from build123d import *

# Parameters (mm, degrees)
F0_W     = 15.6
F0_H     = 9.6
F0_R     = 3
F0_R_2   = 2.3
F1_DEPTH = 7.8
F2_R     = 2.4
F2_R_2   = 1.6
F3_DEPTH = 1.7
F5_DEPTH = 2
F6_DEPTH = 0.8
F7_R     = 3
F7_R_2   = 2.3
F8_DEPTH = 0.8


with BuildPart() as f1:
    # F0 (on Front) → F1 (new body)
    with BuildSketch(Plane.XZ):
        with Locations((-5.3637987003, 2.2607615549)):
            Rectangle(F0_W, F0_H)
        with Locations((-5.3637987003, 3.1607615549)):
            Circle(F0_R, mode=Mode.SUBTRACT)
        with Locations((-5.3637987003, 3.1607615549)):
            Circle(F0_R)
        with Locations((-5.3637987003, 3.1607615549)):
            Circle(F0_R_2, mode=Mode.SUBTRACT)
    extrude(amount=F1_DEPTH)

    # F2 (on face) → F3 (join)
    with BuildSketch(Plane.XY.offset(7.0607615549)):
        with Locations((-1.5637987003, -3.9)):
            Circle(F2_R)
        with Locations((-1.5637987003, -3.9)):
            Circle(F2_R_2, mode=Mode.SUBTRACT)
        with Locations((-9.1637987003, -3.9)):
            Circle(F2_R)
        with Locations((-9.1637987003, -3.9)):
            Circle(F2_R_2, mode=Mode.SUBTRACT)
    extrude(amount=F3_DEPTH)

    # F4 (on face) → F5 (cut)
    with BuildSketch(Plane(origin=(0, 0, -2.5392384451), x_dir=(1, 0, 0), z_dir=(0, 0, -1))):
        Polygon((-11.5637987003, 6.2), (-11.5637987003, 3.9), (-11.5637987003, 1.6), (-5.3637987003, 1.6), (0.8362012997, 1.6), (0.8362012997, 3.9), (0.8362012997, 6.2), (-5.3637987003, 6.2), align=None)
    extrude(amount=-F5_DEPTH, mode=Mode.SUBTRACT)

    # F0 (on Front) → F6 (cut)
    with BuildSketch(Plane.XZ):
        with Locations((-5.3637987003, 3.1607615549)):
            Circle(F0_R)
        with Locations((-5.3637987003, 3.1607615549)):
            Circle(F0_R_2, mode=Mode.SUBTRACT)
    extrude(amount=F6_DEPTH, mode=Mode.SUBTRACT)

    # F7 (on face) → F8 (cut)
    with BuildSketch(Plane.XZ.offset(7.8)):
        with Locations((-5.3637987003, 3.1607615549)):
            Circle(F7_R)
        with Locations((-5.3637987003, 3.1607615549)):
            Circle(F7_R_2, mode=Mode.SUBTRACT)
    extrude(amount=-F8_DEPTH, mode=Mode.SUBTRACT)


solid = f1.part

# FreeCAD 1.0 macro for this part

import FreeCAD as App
import Part
import Sketcher
from FreeCAD import Vector

doc = App.newDocument("Part")
body = doc.addObject("PartDesign::Body", "Body")

# Sketch on XZ plane
sketch1 = body.newObject("Sketcher::SketchObject", "Sketch")
sketch1.AttachmentSupport = (doc.getObject("XZ_Plane"), [""])
sketch1.MapMode = "FlatFace"
sketch1.addGeometry([
    Part.LineSegment(Vector(-13.163799, 7.060762, 0), Vector(-13.163799, -2.539238, 0)),  # 0
    Part.LineSegment(Vector(-13.163799, -2.539238, 0), Vector(2.436201, -2.539238, 0)),  # 1
    Part.LineSegment(Vector(2.436201, -2.539238, 0), Vector(2.436201, 7.060762, 0)),  # 2
    Part.LineSegment(Vector(2.436201, 7.060762, 0), Vector(-13.163799, 7.060762, 0)),  # 3
    Part.Circle(Vector(-5.363799, 3.160762, 0), Vector(0, 0, 1), 2.3),  # 4
], False)
sketch1.addConstraint([
    Sketcher.Constraint("Coincident", 0, 2, 1, 1),
    Sketcher.Constraint("Coincident", 1, 2, 2, 1),
    Sketcher.Constraint("Coincident", 2, 2, 3, 1),
    Sketcher.Constraint("Coincident", 3, 2, 0, 1),
    Sketcher.Constraint("Vertical", 0),
    Sketcher.Constraint("Horizontal", 1),
    Sketcher.Constraint("Vertical", 2),
    Sketcher.Constraint("Horizontal", 3),
    Sketcher.Constraint("Diameter", 4, 4.6),
    Sketcher.Constraint("DistanceX", 1, 1, 1, 2, 15.6),
    Sketcher.Constraint("DistanceY", 0, 2, 0, 1, 9.6),
    Sketcher.Constraint("DistanceX", 0, 2, 4, 3, 7.8),
    Sketcher.Constraint("DistanceY", 0, 2, 4, 3, 5.7),
    Sketcher.Constraint("DistanceX", 4, 3, -1, 1, 5.363799),
    Sketcher.Constraint("DistanceY", -1, 1, 4, 3, 3.160762),
])
pad1 = body.newObject("PartDesign::Pad", "Pad")
pad1.Profile = sketch1
pad1.Length = 7.8

# Sketch on XY plane
sketch2 = body.newObject("Sketcher::SketchObject", "Sketch001")
sketch2.AttachmentSupport = (doc.getObject("XY_Plane"), [""])
sketch2.MapMode = "FlatFace"
sketch2.AttachmentOffset = App.Placement(Vector(0, 0, 7.060762), App.Rotation())
sketch2.addGeometry([
    Part.Circle(Vector(-1.563799, -3.9, 0), Vector(0, 0, 1), 2.4),
    Part.Circle(Vector(-1.563799, -3.9, 0), Vector(0, 0, 1), 1.6),
    Part.Circle(Vector(-9.163799, -3.9, 0), Vector(0, 0, 1), 2.4),
    Part.Circle(Vector(-9.163799, -3.9, 0), Vector(0, 0, 1), 1.6),
], False)
sketch2.addConstraint([
    Sketcher.Constraint("Coincident", 1, 3, 0, 3),
    Sketcher.Constraint("Coincident", 3, 3, 2, 3),
    Sketcher.Constraint("Equal", 0, 2),
    Sketcher.Constraint("Equal", 1, 3),
    Sketcher.Constraint("Horizontal", 1, 3, 2, 3),
    Sketcher.Constraint("Diameter", 0, 4.8),
    Sketcher.Constraint("Diameter", 1, 3.2),
    Sketcher.Constraint("DistanceY", 0, 3, -1, 1, 3.9),
    Sketcher.Constraint("DistanceX", 2, 3, 0, 3, 7.6),
    Sketcher.Constraint("DistanceX", 0, 3, -1, 1, 1.563799),
])
pad2 = body.newObject("PartDesign::Pad", "Pad001")
pad2.Profile = sketch2
pad2.Length = 1.7

# Sketch on XY plane
sketch3 = body.newObject("Sketcher::SketchObject", "Sketch002")
sketch3.AttachmentSupport = (doc.getObject("XY_Plane"), [""])
sketch3.MapMode = "FlatFace"
sketch3.AttachmentOffset = App.Placement(Vector(0, 0, -2.539238), App.Rotation())
sketch3.addGeometry([
    Part.LineSegment(Vector(-11.563799, -6.2, 0), Vector(-11.563799, -1.6, 0)),
    Part.LineSegment(Vector(-11.563799, -1.6, 0), Vector(0.836201, -1.6, 0)),
    Part.LineSegment(Vector(0.836201, -1.6, 0), Vector(0.836201, -6.2, 0)),
    Part.LineSegment(Vector(0.836201, -6.2, 0), Vector(-11.563799, -6.2, 0)),
], False)
sketch3.addConstraint([
    Sketcher.Constraint("Coincident", 0, 2, 1, 1),
    Sketcher.Constraint("Coincident", 1, 2, 2, 1),
    Sketcher.Constraint("Coincident", 2, 2, 3, 1),
    Sketcher.Constraint("Coincident", 3, 2, 0, 1),
    Sketcher.Constraint("Vertical", 0),
    Sketcher.Constraint("Horizontal", 1),
    Sketcher.Constraint("Vertical", 2),
    Sketcher.Constraint("Horizontal", 3),
    Sketcher.Constraint("DistanceX", 1, 1, 1, 2, 12.4),
    Sketcher.Constraint("DistanceY", 0, 1, 0, 2, 4.6),
    Sketcher.Constraint("DistanceY", 0, 2, -1, 1, 1.6),
    Sketcher.Constraint("DistanceX", 0, 2, -1, 1, 11.563799),
])
pocket1 = body.newObject("PartDesign::Pocket", "Pocket")
pocket1.Profile = sketch3
pocket1.Length = 2
pocket1.Reversed = True

# Sketch on XZ plane
sketch4 = body.newObject("Sketcher::SketchObject", "Sketch003")
sketch4.AttachmentSupport = (doc.getObject("XZ_Plane"), [""])
sketch4.MapMode = "FlatFace"
sketch4.addGeometry([
    Part.Circle(Vector(-5.363799, 3.160762, 0), Vector(0, 0, 1), 3),
    Part.Circle(Vector(-5.363799, 3.160762, 0), Vector(0, 0, 1), 2.3),
], False)
sketch4.addConstraint([
    Sketcher.Constraint("Coincident", 1, 3, 0, 3),
    Sketcher.Constraint("Diameter", 0, 6.0),
    Sketcher.Constraint("Diameter", 1, 4.6),
    Sketcher.Constraint("DistanceX", 0, 3, -1, 1, 5.363799),
    Sketcher.Constraint("DistanceY", -1, 1, 0, 3, 3.160762),
])
pocket2 = body.newObject("PartDesign::Pocket", "Pocket001")
pocket2.Profile = sketch4
pocket2.Length = 0.8
pocket2.Reversed = True

# Sketch on XZ plane
sketch5 = body.newObject("Sketcher::SketchObject", "Sketch004")
sketch5.AttachmentSupport = (doc.getObject("XZ_Plane"), [""])
sketch5.MapMode = "FlatFace"
sketch5.AttachmentOffset = App.Placement(Vector(0, 0, 7.8), App.Rotation())
sketch5.addGeometry([
    Part.Circle(Vector(-5.363799, 3.160762, 0), Vector(0, 0, 1), 3),
    Part.Circle(Vector(-5.363799, 3.160762, 0), Vector(0, 0, 1), 2.3),
], False)
sketch5.addConstraint([
    Sketcher.Constraint("Coincident", 1, 3, 0, 3),
    Sketcher.Constraint("Diameter", 0, 6.0),
    Sketcher.Constraint("Diameter", 1, 4.6),
    Sketcher.Constraint("DistanceX", 0, 3, -1, 1, 5.363799),
    Sketcher.Constraint("DistanceY", -1, 1, 0, 3, 3.160762),
])
pocket3 = body.newObject("PartDesign::Pocket", "Pocket002")
pocket3.Profile = sketch5
pocket3.Length = 0.8

doc.recompute()
